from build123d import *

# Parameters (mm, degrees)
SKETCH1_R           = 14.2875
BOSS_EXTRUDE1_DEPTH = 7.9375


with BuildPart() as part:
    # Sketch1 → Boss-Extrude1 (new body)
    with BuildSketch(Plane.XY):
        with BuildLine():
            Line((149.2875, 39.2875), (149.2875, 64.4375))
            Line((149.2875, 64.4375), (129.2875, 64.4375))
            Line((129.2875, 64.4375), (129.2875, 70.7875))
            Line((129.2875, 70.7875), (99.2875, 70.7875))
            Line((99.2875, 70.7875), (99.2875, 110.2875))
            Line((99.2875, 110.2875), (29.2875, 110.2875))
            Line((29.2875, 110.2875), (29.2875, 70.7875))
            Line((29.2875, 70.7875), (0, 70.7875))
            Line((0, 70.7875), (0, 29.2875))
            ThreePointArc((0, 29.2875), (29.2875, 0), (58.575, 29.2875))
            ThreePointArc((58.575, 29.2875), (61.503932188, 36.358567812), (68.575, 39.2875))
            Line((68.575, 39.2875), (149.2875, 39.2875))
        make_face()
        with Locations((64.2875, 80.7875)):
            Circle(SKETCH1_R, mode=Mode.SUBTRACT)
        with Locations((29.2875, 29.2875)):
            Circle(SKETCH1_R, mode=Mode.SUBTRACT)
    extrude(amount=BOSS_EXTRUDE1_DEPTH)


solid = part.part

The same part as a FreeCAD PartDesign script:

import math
import FreeCAD as App
import Part
import Sketcher
from FreeCAD import Vector
Q = App.Units.Quantity

doc = App.newDocument("Part")
body = doc.addObject("PartDesign::Body", "Body")

# Sketch on XY plane
sketch1 = doc.addObject("Sketcher::SketchObject", "Sketch")
body.addObject(sketch1)
sketch1.AttachmentSupport = (doc.XY_Plane, [""])
sketch1.MapMode = "FlatFace"
sketch1.addGeometry([
    Part.LineSegment(Vector(149, 39, 0), Vector(149, 64, 0)),  # 0
    Part.LineSegment(Vector(149, 64, 0), Vector(129, 64, 0)),  # 1
    Part.LineSegment(Vector(129, 64, 0), Vector(129, 71, 0)),  # 2
    Part.LineSegment(Vector(129, 71, 0), Vector(99, 71, 0)),  # 3
    Part.LineSegment(Vector(99, 71, 0), Vector(99, 110, 0)),  # 4
    Part.LineSegment(Vector(99, 110, 0), Vector(29, 110, 0)),  # 5
    Part.LineSegment(Vector(29, 110, 0), Vector(29, 71, 0)),  # 6
    Part.LineSegment(Vector(29, 71, 0), Vector(0, 71, 0)),  # 7
    Part.LineSegment(Vector(0, 71, 0), Vector(0, 29, 0)),  # 8
    Part.ArcOfCircle(Part.Circle(Vector(29, 29, 0), Vector(0, 0, 1), 29), math.radians(180), math.radians(360)),  # 9
    Part.ArcOfCircle(Part.Circle(Vector(69, 29, 0), Vector(0, 0, 1), 10), math.radians(90), math.radians(180)),  # 10
    Part.LineSegment(Vector(69, 39, 0), Vector(149, 39, 0)),  # 11
    Part.Circle(Vector(29, 29, 0), Vector(0, 0, 1), 14),  # 12
    Part.Circle(Vector(64, 81, 0), Vector(0, 0, 1), 14),  # 13
], False)
sketch1.addConstraint([
    Sketcher.Constraint("Coincident", 0, 2, 1, 1),
    Sketcher.Constraint("Coincident", 1, 2, 2, 1),
    Sketcher.Constraint("Coincident", 2, 2, 3, 1),
    Sketcher.Constraint("Coincident", 3, 2, 4, 1),
    Sketcher.Constraint("Coincident", 4, 2, 5, 1),
    Sketcher.Constraint("Coincident", 5, 2, 6, 1),
    Sketcher.Constraint("Coincident", 6, 2, 7, 1),
    Sketcher.Constraint("Coincident", 7, 2, 8, 1),
    Sketcher.Constraint("Tangent", 8, 2, 9, 1),
    Sketcher.Constraint("Tangent", 9, 2, 10, 2),
    Sketcher.Constraint("Tangent", 10, 1, 11, 1),
    Sketcher.Constraint("Coincident", 11, 2, 0, 1),
    Sketcher.Constraint("Vertical", 0),
    Sketcher.Constraint("Horizontal", 1),
    Sketcher.Constraint("Vertical", 2),
    Sketcher.Constraint("Horizontal", 3),
    Sketcher.Constraint("Vertical", 4),
    Sketcher.Constraint("Horizontal", 5),
    Sketcher.Constraint("Vertical", 6),
    Sketcher.Constraint("Horizontal", 7),
    Sketcher.Constraint("Vertical", 8),
    Sketcher.Constraint("Horizontal", 11),
    Sketcher.Constraint("Coincident", 12, 3, 9, 3),
    Sketcher.Constraint("Equal", 12, 13),
    Sketcher.Constraint("PointOnObject", 7, 2, -2),
    Sketcher.Constraint("Horizontal", 9, 3, 10, 3),
    Sketcher.Constraint("Horizontal", 3, 2, 6, 2),
    Sketcher.Constraint("Vertical", 12, 3, 5, 2),
    Sketcher.Constraint("Radius", 10, Q("10 mm")),
    Sketcher.Constraint("DistanceX", 1, 2, 1, 1, Q("20 mm")),
    Sketcher.Constraint("DistanceX", 3, 2, 3, 1, Q("30 mm")),
    Sketcher.Constraint("DistanceX", 5, 2, 5, 1, Q("70 mm")),
    Sketcher.Constraint("Diameter", 12, Q("28.575 mm")),
    Sketcher.Constraint("DistanceY", 4, 1, 4, 2, Q("39.5 mm")),
    Sketcher.Constraint("DistanceY", 8, 2, 8, 1, Q("41.5 mm")),
    Sketcher.Constraint("DistanceX", 9, 3, 13, 3, Q("35 mm")),
    Sketcher.Constraint("DistanceY", 2, 2, 13, 3, Q("10 mm")),
    Sketcher.Constraint("DistanceY", 0, 1, 0, 2, Q("25.15 mm")),
    Sketcher.Constraint("Radius", 9, Q("29.2875 mm")),
    Sketcher.Constraint("DistanceY", -1, 1, 9, 3, Q("29.2875 mm")),
])
pad1 = doc.addObject("PartDesign::Pad", "Pad")
body.addObject(pad1)
pad1.Profile = sketch1
pad1.Length = 7.9375

doc.recompute()
